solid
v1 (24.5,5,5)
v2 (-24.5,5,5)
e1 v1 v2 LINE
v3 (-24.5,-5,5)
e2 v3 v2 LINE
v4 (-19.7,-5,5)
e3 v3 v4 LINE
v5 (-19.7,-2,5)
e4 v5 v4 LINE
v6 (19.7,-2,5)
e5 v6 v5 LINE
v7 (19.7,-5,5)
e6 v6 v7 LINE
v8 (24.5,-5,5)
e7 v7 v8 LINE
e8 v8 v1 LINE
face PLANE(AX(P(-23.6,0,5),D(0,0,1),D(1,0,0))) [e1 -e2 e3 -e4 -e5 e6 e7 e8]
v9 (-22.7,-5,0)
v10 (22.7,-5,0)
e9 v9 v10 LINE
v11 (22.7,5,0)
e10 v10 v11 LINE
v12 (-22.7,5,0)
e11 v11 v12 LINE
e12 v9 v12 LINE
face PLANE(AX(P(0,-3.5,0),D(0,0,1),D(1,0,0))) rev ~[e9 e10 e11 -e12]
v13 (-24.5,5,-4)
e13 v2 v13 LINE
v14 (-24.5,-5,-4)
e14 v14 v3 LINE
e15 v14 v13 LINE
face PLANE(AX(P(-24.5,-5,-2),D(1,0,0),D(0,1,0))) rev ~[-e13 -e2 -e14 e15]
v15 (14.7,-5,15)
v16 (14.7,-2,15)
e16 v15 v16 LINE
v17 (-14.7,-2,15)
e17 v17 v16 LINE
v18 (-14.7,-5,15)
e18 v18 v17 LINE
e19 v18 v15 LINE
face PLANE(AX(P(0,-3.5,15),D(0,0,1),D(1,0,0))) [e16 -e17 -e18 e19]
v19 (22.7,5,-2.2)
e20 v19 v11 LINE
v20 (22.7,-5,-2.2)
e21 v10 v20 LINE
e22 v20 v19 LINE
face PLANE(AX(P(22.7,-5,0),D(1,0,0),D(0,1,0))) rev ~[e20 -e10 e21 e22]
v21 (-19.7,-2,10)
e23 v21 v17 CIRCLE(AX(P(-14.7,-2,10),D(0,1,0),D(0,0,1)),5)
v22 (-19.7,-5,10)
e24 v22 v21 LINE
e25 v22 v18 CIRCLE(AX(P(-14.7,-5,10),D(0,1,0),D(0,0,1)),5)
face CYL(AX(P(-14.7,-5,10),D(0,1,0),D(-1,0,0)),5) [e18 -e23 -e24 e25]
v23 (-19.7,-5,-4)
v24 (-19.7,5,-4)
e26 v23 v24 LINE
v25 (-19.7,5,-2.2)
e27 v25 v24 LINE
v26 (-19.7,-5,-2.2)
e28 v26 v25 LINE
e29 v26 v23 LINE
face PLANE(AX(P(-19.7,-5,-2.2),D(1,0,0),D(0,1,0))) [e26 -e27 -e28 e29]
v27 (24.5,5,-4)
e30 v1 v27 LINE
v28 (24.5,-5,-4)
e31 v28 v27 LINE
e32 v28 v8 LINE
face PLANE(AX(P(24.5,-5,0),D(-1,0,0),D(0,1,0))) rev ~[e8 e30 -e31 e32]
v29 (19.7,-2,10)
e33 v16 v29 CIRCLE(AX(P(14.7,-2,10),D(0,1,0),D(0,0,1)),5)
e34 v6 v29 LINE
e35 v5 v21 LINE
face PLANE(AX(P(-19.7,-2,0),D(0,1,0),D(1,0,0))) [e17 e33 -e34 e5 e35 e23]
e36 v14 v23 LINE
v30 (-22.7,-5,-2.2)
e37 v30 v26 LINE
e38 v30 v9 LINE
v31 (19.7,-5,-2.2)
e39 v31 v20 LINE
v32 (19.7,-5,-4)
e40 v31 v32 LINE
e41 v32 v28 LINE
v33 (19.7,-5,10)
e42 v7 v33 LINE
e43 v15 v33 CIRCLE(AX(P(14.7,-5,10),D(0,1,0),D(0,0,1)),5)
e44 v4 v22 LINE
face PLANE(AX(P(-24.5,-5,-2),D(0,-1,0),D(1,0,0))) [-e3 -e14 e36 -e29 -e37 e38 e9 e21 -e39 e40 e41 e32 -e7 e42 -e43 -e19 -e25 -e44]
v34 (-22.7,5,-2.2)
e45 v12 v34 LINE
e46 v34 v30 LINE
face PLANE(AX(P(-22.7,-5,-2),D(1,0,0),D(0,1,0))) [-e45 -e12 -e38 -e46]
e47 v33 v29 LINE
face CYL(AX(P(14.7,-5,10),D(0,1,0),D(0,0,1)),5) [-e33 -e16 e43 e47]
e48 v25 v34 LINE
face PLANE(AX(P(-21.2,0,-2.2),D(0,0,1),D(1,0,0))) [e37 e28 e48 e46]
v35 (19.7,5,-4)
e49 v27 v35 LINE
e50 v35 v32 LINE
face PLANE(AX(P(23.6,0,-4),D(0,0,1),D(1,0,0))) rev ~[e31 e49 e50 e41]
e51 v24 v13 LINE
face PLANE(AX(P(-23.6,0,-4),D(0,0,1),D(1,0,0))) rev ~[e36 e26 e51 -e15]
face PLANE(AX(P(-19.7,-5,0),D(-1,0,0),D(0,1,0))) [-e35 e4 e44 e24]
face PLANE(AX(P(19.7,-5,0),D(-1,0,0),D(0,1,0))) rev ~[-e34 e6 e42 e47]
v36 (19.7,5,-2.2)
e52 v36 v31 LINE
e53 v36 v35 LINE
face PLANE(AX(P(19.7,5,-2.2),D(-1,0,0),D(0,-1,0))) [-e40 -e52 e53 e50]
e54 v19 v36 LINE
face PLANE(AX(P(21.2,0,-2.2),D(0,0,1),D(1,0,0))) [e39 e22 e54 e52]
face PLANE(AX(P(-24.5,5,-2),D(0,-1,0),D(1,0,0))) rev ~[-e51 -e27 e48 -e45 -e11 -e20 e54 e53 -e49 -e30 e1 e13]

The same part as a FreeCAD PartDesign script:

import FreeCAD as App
import Part
import Sketcher
Q = App.Units.Quantity


def edges_at(feature, points):
    """Names of the edges that pass closest to the given points."""
    edges = feature.Shape.Edges
    near = lambda p: min(range(len(edges)), key=lambda i: edges[i].distToShape(Part.Vertex(*p))[0])
    return sorted({f"Edge{near(p) + 1}" for p in points})


def add_polygon(sketch, points):
    """Adds a closed chain of lines whose ends are joined by coincident constraints."""
    first, n = sketch.GeometryCount, len(points)
    for a, b in zip(points, points[1:] + points[:1]):
        sketch.addGeometry(Part.LineSegment(App.Vector(*a, 0), App.Vector(*b, 0)), False)
    for i in range(n):
        sketch.addConstraint(Sketcher.Constraint("Coincident", first + i, 2, first + (i + 1) % n, 1))

doc = App.newDocument("Part")
body = doc.addObject("PartDesign::Body", "Body")

sketch1 = body.newObject("Sketcher::SketchObject", "Sketch")
sketch1.AttachmentSupport = (doc.getObject("XY_Plane"), [""])
sketch1.MapMode = "FlatFace"
add_polygon(sketch1, [(-24, 5), (-24, -5), (24, -5), (24, 5)])
sketch1.addConstraint([
    Sketcher.Constraint("Vertical", 0),
    Sketcher.Constraint("Horizontal", 1),
    Sketcher.Constraint("Vertical", 2),
    Sketcher.Constraint("Horizontal", 3),
    Sketcher.Constraint("Symmetric", 0, 2, 2, 2, -1, 1),
    Sketcher.Constraint("DistanceX", 1, 1, 1, 2, Q("49 mm")),
    Sketcher.Constraint("DistanceY", 0, 2, 0, 1, Q("10 mm")),
])
pad1 = body.newObject("PartDesign::Pad", "Pad")
pad1.Profile = sketch1
pad1.Length = 5

sketch2 = body.newObject("Sketcher::SketchObject", "Sketch001")
sketch2.AttachmentSupport = (doc.getObject("XY_Plane"), [""])
sketch2.MapMode = "FlatFace"
add_polygon(sketch2, [(-24.5, 5), (-24.5, -5), (-22.7, -5), (-22.7, 5)])
add_polygon(sketch2, [(22.7, 5), (22.7, -5), (24.5, -5), (24.5, 5)])
sketch2.addConstraint([
    Sketcher.Constraint("Vertical", 0),
    Sketcher.Constraint("Horizontal", 1),
    Sketcher.Constraint("Vertical", 2),
    Sketcher.Constraint("Horizontal", 3),
    Sketcher.Constraint("Vertical", 4),
    Sketcher.Constraint("Horizontal", 5),
    Sketcher.Constraint("Vertical", 6),
    Sketcher.Constraint("Horizontal", 7),
    Sketcher.Constraint("Symmetric", 2, 2, 4, 2, -1, 1),
    Sketcher.Constraint("Symmetric", 0, 2, 6, 2, -1, 1),
    Sketcher.Constraint("Horizontal", 1, 2, 4, 2),
    Sketcher.Constraint("DistanceY", 0, 2, 0, 1, Q("10 mm")),
    Sketcher.Constraint("DistanceX", 1, 1, 1, 2, Q("1.8 mm")),
    Sketcher.Constraint("DistanceX", 0, 2, 5, 2, Q("49 mm")),
])
pad2 = body.newObject("PartDesign::Pad", "Pad001")
pad2.Profile = sketch2
pad2.Length = 2
pad2.Reversed = True
body2 = doc.addObject("PartDesign::Body", "Body001")

sketch3 = body2.newObject("Sketcher::SketchObject", "Sketch002")
sketch3.AttachmentSupport = (doc.getObject("XY_Plane001"), [""])
sketch3.MapMode = "FlatFace"
sketch3.AttachmentOffset = App.Placement(App.Vector(0, 0, -2.2), App.Rotation())
add_polygon(sketch3, [(-19.7, 5), (-22.7, 5), (-22.7, -5), (-19.7, -5)])
sketch3.addConstraint([
    Sketcher.Constraint("Horizontal", 0),
    Sketcher.Constraint("Vertical", 1),
    Sketcher.Constraint("Horizontal", 2),
    Sketcher.Constraint("Vertical", 3),
    Sketcher.Constraint("DistanceX", 0, 2, 0, 1, Q("3 mm")),
    Sketcher.Constraint("DistanceY", 1, 2, 1, 1, Q("10 mm")),
    Sketcher.Constraint("DistanceY", -1, 1, 0, 2, Q("5 mm")),
    Sketcher.Constraint("DistanceX", 0, 2, -1, 1, Q("22.7 mm")),
])
pad3 = body2.newObject("PartDesign::Pad", "Pad002")
pad3.Profile = sketch3
pad3.Length = 1.8
pad3.Reversed = True
body3 = doc.addObject("PartDesign::Body", "Body002")

sketch4 = body3.newObject("Sketcher::SketchObject", "Sketch003")
sketch4.AttachmentSupport = (doc.getObject("XY_Plane002"), [""])
sketch4.MapMode = "FlatFace"
sketch4.AttachmentOffset = App.Placement(App.Vector(0, 0, -2.2), App.Rotation())
add_polygon(sketch4, [(22.7, -5), (22.7, 5), (19.7, 5), (19.7, -5)])
sketch4.addConstraint([
    Sketcher.Constraint("Vertical", 0),
    Sketcher.Constraint("Horizontal", 1),
    Sketcher.Constraint("Vertical", 2),
    Sketcher.Constraint("Horizontal", 3),
    Sketcher.Constraint("DistanceX", 1, 2, 1, 1, Q("3 mm")),
    Sketcher.Constraint("DistanceY", 0, 1, 0, 2, Q("10 mm")),
    Sketcher.Constraint("DistanceY", -1, 1, 0, 2, Q("5 mm")),
    Sketcher.Constraint("DistanceX", -1, 1, 0, 2, Q("22.7 mm")),
])
pad4 = body3.newObject("PartDesign::Pad", "Pad003")
pad4.Profile = sketch4
pad4.Length = 1.8
pad4.Reversed = True
body.AllowCompound = True
doc.recompute()

boolean = body.newObject("PartDesign::Boolean", "Boolean")
boolean.Type = "Fuse"
boolean.addObjects([body2])
doc.recompute()

boolean2 = body.newObject("PartDesign::Boolean", "Boolean001")
boolean2.Type = "Fuse"
boolean2.addObjects([body3])

sketch5 = body.newObject("Sketcher::SketchObject", "Sketch004")
sketch5.AttachmentSupport = (doc.getObject("XY_Plane"), [""])
sketch5.MapMode = "FlatFace"
sketch5.AttachmentOffset = App.Placement(App.Vector(0, 0, -2), App.Rotation())
add_polygon(sketch5, [(-24.5, 5), (-24.5, -5), (-22.7, -5), (-22.7, 5)])
add_polygon(sketch5, [(22.7, 5), (22.7, -5), (24.5, -5), (24.5, 5)])
sketch5.addConstraint([
    Sketcher.Constraint("Vertical", 0),
    Sketcher.Constraint("Horizontal", 1),
    Sketcher.Constraint("Vertical", 2),
    Sketcher.Constraint("Horizontal", 3),
    Sketcher.Constraint("Vertical", 4),
    Sketcher.Constraint("Horizontal", 5),
    Sketcher.Constraint("Vertical", 6),
    Sketcher.Constraint("Horizontal", 7),
    Sketcher.Constraint("Symmetric", 2, 2, 4, 2, -1, 1),
    Sketcher.Constraint("Symmetric", 0, 2, 6, 2, -1, 1),
    Sketcher.Constraint("Horizontal", 1, 2, 4, 2),
    Sketcher.Constraint("DistanceY", 0, 2, 0, 1, Q("10 mm")),
    Sketcher.Constraint("DistanceX", 1, 1, 1, 2, Q("1.8 mm")),
    Sketcher.Constraint("DistanceX", 0, 2, 5, 2, Q("49 mm")),
])
pad5 = body.newObject("PartDesign::Pad", "Pad004")
pad5.Profile = sketch5
pad5.Length = 2
pad5.Reversed = True

sketch6 = body.newObject("Sketcher::SketchObject", "Sketch005")
sketch6.AttachmentSupport = (doc.getObject("XY_Plane"), [""])
sketch6.MapMode = "FlatFace"
add_polygon(sketch6, [(-19.7, -2), (-19.7, -5), (19.7, -5), (19.7, -2)])
sketch6.addConstraint([
    Sketcher.Constraint("Vertical", 0),
    Sketcher.Constraint("Horizontal", 1),
    Sketcher.Constraint("Vertical", 2),
    Sketcher.Constraint("Horizontal", 3),
    Sketcher.Constraint("DistanceY", 0, 2, 0, 1, Q("3 mm")),
    Sketcher.Constraint("DistanceX", 1, 1, 1, 2, Q("39.4 mm")),
    Sketcher.Constraint("DistanceY", 0, 2, -1, 1, Q("5 mm")),
    Sketcher.Constraint("DistanceX", 0, 2, -1, 1, Q("19.7 mm")),
])
pad6 = body.newObject("PartDesign::Pad", "Pad005")
pad6.Profile = sketch6
pad6.Length = 15
doc.recompute()

fillet = body.newObject("PartDesign::Fillet", "Fillet")
fillet.Base = (pad6, edges_at(pad6, [(-19.7, -3.5, 15), (19.7, -3.5, 15)]))
fillet.Radius = 5

doc.recompute()
